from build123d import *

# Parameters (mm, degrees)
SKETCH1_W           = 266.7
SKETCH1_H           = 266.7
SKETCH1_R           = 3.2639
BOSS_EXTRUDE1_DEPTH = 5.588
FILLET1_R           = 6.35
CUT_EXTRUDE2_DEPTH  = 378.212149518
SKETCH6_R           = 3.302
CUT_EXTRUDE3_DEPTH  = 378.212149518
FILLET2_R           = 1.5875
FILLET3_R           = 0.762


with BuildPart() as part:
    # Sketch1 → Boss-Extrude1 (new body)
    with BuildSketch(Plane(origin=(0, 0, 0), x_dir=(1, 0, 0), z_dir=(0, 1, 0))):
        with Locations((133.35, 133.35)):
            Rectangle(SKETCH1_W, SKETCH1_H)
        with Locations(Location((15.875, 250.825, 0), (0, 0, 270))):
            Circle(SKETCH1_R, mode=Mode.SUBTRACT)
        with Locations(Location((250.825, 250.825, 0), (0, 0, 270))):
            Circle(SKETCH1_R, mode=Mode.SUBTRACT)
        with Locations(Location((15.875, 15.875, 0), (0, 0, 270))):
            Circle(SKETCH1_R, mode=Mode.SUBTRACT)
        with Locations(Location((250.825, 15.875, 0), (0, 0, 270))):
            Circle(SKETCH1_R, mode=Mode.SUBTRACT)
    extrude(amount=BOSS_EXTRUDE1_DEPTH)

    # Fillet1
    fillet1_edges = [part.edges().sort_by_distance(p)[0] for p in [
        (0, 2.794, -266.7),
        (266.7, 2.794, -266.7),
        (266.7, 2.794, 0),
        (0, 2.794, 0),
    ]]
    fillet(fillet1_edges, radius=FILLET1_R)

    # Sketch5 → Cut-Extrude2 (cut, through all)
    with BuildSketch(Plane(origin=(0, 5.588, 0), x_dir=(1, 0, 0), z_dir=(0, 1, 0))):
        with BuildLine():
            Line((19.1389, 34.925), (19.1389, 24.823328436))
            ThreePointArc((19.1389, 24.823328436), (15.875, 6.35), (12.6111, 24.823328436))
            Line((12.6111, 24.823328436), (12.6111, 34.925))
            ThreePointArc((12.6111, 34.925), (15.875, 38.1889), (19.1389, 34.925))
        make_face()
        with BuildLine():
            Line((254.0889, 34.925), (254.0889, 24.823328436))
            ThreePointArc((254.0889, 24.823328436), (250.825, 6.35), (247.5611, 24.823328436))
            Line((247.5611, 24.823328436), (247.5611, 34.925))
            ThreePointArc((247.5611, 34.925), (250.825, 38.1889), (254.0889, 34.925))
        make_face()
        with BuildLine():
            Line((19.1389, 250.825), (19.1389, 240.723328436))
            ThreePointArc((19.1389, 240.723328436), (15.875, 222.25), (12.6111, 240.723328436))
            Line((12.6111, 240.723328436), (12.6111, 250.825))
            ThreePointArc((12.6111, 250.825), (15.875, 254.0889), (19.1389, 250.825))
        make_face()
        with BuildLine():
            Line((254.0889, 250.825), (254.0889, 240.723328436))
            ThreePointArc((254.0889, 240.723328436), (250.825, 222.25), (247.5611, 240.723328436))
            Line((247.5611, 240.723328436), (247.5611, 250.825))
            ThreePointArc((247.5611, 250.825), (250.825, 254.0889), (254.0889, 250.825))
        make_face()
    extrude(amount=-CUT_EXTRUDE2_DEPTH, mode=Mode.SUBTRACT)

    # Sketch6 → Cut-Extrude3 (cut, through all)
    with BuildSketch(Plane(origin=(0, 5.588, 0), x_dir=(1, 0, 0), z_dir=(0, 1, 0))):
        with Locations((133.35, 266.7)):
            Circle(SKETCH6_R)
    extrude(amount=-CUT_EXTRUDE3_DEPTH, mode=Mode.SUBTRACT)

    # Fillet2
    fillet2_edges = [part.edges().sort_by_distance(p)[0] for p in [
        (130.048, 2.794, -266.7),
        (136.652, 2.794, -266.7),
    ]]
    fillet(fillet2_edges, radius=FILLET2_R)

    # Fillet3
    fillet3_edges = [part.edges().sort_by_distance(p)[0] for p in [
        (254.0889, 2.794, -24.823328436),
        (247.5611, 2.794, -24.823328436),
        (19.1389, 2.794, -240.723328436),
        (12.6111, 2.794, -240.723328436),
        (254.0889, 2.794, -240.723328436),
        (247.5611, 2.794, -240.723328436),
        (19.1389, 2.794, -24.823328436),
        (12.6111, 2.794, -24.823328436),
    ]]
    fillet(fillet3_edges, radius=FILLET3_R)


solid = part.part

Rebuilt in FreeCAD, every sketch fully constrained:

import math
import FreeCAD as App
import Part
import Sketcher
Q = App.Units.Quantity


def edges_at(feature, points):
    """Names of the edges that pass closest to the given points."""
    edges = feature.Shape.Edges
    near = lambda p: min(range(len(edges)), key=lambda i: edges[i].distToShape(Part.Vertex(*p))[0])
    return sorted({f"Edge{near(p) + 1}" for p in points})


def add_polygon(sketch, points):
    """Adds a closed chain of lines whose ends are joined by coincident constraints."""
    first, n = sketch.GeometryCount, len(points)
    for a, b in zip(points, points[1:] + points[:1]):
        sketch.addGeometry(Part.LineSegment(App.Vector(*a, 0), App.Vector(*b, 0)), False)
    for i in range(n):
        sketch.addConstraint(Sketcher.Constraint("Coincident", first + i, 2, first + (i + 1) % n, 1))

doc = App.newDocument("Part")
body = doc.addObject("PartDesign::Body", "Body")

# Sketch on XZ plane
sketch1 = body.newObject("Sketcher::SketchObject", "Sketch")
sketch1.AttachmentSupport = (doc.getObject("XZ_Plane"), [""])
sketch1.MapMode = "FlatFace"
add_polygon(sketch1, [(0, -266.7), (0, 0), (266.7, 0), (266.7, -266.7)])  # lines 0-3
sketch1.addGeometry(Part.Circle(App.Vector(15.9, -15.9, 0), App.Vector(0, 0, 1), 3.3), False)  # 4
sketch1.addGeometry(Part.Circle(App.Vector(250.8, -15.9, 0), App.Vector(0, 0, 1), 3.3), False)  # 5
sketch1.addGeometry(Part.Circle(App.Vector(15.9, -250.8, 0), App.Vector(0, 0, 1), 3.3), False)  # 6
sketch1.addGeometry(Part.Circle(App.Vector(250.8, -250.8, 0), App.Vector(0, 0, 1), 3.3), False)  # 7
sketch1.addConstraint([
    Sketcher.Constraint("Vertical", 0),
    Sketcher.Constraint("Horizontal", 1),
    Sketcher.Constraint("Vertical", 2),
    Sketcher.Constraint("Horizontal", 3),
    Sketcher.Constraint("Coincident", 0, 2, -1, 1),
    Sketcher.Constraint("Equal", 4, 5),
    Sketcher.Constraint("Equal", 5, 6),
    Sketcher.Constraint("Equal", 6, 7),
    Sketcher.Constraint("Horizontal", 4, 3, 5, 3),
    Sketcher.Constraint("Horizontal", 6, 3, 7, 3),
    Sketcher.Constraint("Vertical", 4, 3, 6, 3),
    Sketcher.Constraint("Vertical", 5, 3, 7, 3),
    Sketcher.Constraint("Equal", 3, 0),
    Sketcher.Constraint("Diameter", 4, Q("0.257 in")),
    Sketcher.Constraint("DistanceX", 1, 1, 1, 2, Q("10.5 in")),
    Sketcher.Constraint("DistanceX", 4, 3, 5, 3, Q("9.25 in")),
    Sketcher.Constraint("DistanceY", 6, 3, 4, 3, Q("9.25 in")),
    Sketcher.Constraint("DistanceX", -1, 1, 4, 3, Q("0.625 in")),
    Sketcher.Constraint("DistanceY", 4, 3, -1, 1, Q("0.625 in")),
])
pad1 = body.newObject("PartDesign::Pad", "Pad")
pad1.Profile = sketch1
pad1.Length = Q("0.22 in")
pad1.Reversed = True
doc.recompute()

fillet = body.newObject("PartDesign::Fillet", "Fillet")
fillet.Base = (pad1, edges_at(pad1, [
    (0, 2.794, -266.7),
    (266.7, 2.794, -266.7),
    (266.7, 2.794, 0),
    (0, 2.794, 0),
]))
fillet.Radius = Q("0.25 in")

# Sketch on XZ plane
sketch2 = body.newObject("Sketcher::SketchObject", "Sketch001")
sketch2.AttachmentSupport = (doc.getObject("XZ_Plane"), [""])
sketch2.MapMode = "FlatFace"
sketch2.AttachmentOffset = App.Placement(App.Vector(0, 0, -0.22 * 25.4), App.Rotation())
sketch2.addGeometry([
    Part.LineSegment(App.Vector(19.1, -24.8, 0), App.Vector(19.1, -34.9, 0)),  # 0
    Part.ArcOfCircle(Part.Circle(App.Vector(15.9, -34.9, 0), App.Vector(0, 0, 1), 3.3), math.radians(180), math.radians(360)),  # 1
    Part.LineSegment(App.Vector(12.6, -34.9, 0), App.Vector(12.6, -24.8, 0)),  # 2
    Part.ArcOfCircle(Part.Circle(App.Vector(15.9, -15.9, 0), App.Vector(0, 0, 1), 9.5), math.radians(-70), math.radians(250)),  # 3
    Part.LineSegment(App.Vector(254.1, -24.8, 0), App.Vector(254.1, -34.9, 0)),  # 4
    Part.ArcOfCircle(Part.Circle(App.Vector(250.8, -34.9, 0), App.Vector(0, 0, 1), 3.3), math.radians(180), math.radians(360)),  # 5
    Part.LineSegment(App.Vector(247.6, -34.9, 0), App.Vector(247.6, -24.8, 0)),  # 6
    Part.ArcOfCircle(Part.Circle(App.Vector(250.8, -15.9, 0), App.Vector(0, 0, 1), 9.5), math.radians(-70), math.radians(250)),  # 7
    Part.LineSegment(App.Vector(19.1, -240.7, 0), App.Vector(19.1, -250.8, 0)),  # 8
    Part.ArcOfCircle(Part.Circle(App.Vector(15.9, -250.8, 0), App.Vector(0, 0, 1), 3.3), math.radians(180), math.radians(360)),  # 9
    Part.LineSegment(App.Vector(12.6, -250.8, 0), App.Vector(12.6, -240.7, 0)),  # 10
    Part.ArcOfCircle(Part.Circle(App.Vector(15.9, -231.8, 0), App.Vector(0, 0, 1), 9.5), math.radians(-70), math.radians(250)),  # 11
    Part.LineSegment(App.Vector(254.1, -240.7, 0), App.Vector(254.1, -250.8, 0)),  # 12
    Part.ArcOfCircle(Part.Circle(App.Vector(250.8, -250.8, 0), App.Vector(0, 0, 1), 3.3), math.radians(180), math.radians(360)),  # 13
    Part.LineSegment(App.Vector(247.6, -250.8, 0), App.Vector(247.6, -240.7, 0)),  # 14
    Part.ArcOfCircle(Part.Circle(App.Vector(250.8, -231.8, 0), App.Vector(0, 0, 1), 9.5), math.radians(-70), math.radians(250)),  # 15
], False)
sketch2.addConstraint([
    Sketcher.Constraint("Tangent", 0, 2, 1, 2),
    Sketcher.Constraint("Tangent", 1, 1, 2, 1),
    Sketcher.Constraint("Coincident", 2, 2, 3, 2),
    Sketcher.Constraint("Coincident", 3, 1, 0, 1),
    Sketcher.Constraint("Tangent", 4, 2, 5, 2),
    Sketcher.Constraint("Tangent", 5, 1, 6, 1),
    Sketcher.Constraint("Coincident", 6, 2, 7, 2),
    Sketcher.Constraint("Coincident", 7, 1, 4, 1),
    Sketcher.Constraint("Tangent", 8, 2, 9, 2),
    Sketcher.Constraint("Tangent", 9, 1, 10, 1),
    Sketcher.Constraint("Coincident", 10, 2, 11, 2),
    Sketcher.Constraint("Coincident", 11, 1, 8, 1),
    Sketcher.Constraint("Tangent", 12, 2, 13, 2),
    Sketcher.Constraint("Tangent", 13, 1, 14, 1),
    Sketcher.Constraint("Coincident", 14, 2, 15, 2),
    Sketcher.Constraint("Coincident", 15, 1, 12, 1),
    Sketcher.Constraint("Vertical", 0),
    Sketcher.Constraint("Vertical", 2),
    Sketcher.Constraint("Vertical", 4),
    Sketcher.Constraint("Vertical", 6),
    Sketcher.Constraint("Vertical", 8),
    Sketcher.Constraint("Vertical", 10),
    Sketcher.Constraint("Vertical", 12),
    Sketcher.Constraint("Vertical", 14),
    Sketcher.Constraint("Equal", 1, 5),
    Sketcher.Constraint("Equal", 3, 7),
    Sketcher.Constraint("Equal", 5, 9),
    Sketcher.Constraint("Equal", 7, 11),
    Sketcher.Constraint("Equal", 9, 13),
    Sketcher.Constraint("Equal", 11, 15),
    Sketcher.Constraint("Horizontal", 1, 3, 5, 3),
    Sketcher.Constraint("Horizontal", 3, 3, 7, 3),
    Sketcher.Constraint("Horizontal", 9, 3, 13, 3),
    Sketcher.Constraint("Horizontal", 11, 3, 15, 3),
    Sketcher.Constraint("Horizontal", 2, 2, 3, 1),
    Sketcher.Constraint("Horizontal", 3, 1, 6, 2),
    Sketcher.Constraint("Horizontal", 10, 2, 11, 1),
    Sketcher.Constraint("Horizontal", 11, 1, 14, 2),
    Sketcher.Constraint("Vertical", 3, 3, 9, 3),
    Sketcher.Constraint("Vertical", 7, 3, 13, 3),
    Sketcher.Constraint("Equal", 6, 8),
    Sketcher.Constraint("Radius", 3, Q("0.375 in")),
    Sketcher.Constraint("Radius", 1, Q("0.1285 in")),
    Sketcher.Constraint("DistanceY", 9, 3, 1, 3, Q("8.5 in")),
    Sketcher.Constraint("DistanceY", 1, 3, 3, 3, Q("0.75 in")),
    Sketcher.Constraint("DistanceX", 1, 3, 5, 3, Q("9.25 in")),
    Sketcher.Constraint("DistanceX", -1, 1, 1, 3, Q("0.625 in")),
    Sketcher.Constraint("DistanceY", 1, 3, -1, 1, Q("1.375 in")),
])
pocket1 = body.newObject("PartDesign::Pocket", "Pocket")
pocket1.Profile = sketch2
pocket1.Type = "ThroughAll"
pocket1.Reversed = True

# Sketch on XZ plane
sketch3 = body.newObject("Sketcher::SketchObject", "Sketch002")
sketch3.AttachmentSupport = (doc.getObject("XZ_Plane"), [""])
sketch3.MapMode = "FlatFace"
sketch3.AttachmentOffset = App.Placement(App.Vector(0, 0, -0.22 * 25.4), App.Rotation())
sketch3.addGeometry(Part.Circle(App.Vector(133.3, -266.7, 0), App.Vector(0, 0, 1), 3.3), False)
sketch3.addConstraint([
    Sketcher.Constraint("Diameter", 0, Q("0.26 in")),
    Sketcher.Constraint("DistanceY", 0, 3, -1, 1, Q("10.5 in")),
    Sketcher.Constraint("DistanceX", -1, 1, 0, 3, Q("5.25 in")),
])
pocket2 = body.newObject("PartDesign::Pocket", "Pocket001")
pocket2.Profile = sketch3
pocket2.Type = "ThroughAll"
pocket2.Reversed = True
doc.recompute()

fillet2 = body.newObject("PartDesign::Fillet", "Fillet001")
fillet2.Base = (pocket2, edges_at(pocket2, [(130.048, 2.794, -266.7), (136.652, 2.794, -266.7)]))
fillet2.Radius = Q("0.0625 in")
doc.recompute()

fillet3 = body.newObject("PartDesign::Fillet", "Fillet002")
fillet3.Base = (fillet2, edges_at(fillet2, [
    (254.089, 2.794, -24.823),
    (247.561, 2.794, -24.823),
    (19.139, 2.794, -240.723),
    (12.611, 2.794, -240.723),
    (254.089, 2.794, -240.723),
    (247.561, 2.794, -240.723),
    (19.139, 2.794, -24.823),
    (12.611, 2.794, -24.823),
]))
fillet3.Radius = Q("0.03 in")

doc.recompute()
